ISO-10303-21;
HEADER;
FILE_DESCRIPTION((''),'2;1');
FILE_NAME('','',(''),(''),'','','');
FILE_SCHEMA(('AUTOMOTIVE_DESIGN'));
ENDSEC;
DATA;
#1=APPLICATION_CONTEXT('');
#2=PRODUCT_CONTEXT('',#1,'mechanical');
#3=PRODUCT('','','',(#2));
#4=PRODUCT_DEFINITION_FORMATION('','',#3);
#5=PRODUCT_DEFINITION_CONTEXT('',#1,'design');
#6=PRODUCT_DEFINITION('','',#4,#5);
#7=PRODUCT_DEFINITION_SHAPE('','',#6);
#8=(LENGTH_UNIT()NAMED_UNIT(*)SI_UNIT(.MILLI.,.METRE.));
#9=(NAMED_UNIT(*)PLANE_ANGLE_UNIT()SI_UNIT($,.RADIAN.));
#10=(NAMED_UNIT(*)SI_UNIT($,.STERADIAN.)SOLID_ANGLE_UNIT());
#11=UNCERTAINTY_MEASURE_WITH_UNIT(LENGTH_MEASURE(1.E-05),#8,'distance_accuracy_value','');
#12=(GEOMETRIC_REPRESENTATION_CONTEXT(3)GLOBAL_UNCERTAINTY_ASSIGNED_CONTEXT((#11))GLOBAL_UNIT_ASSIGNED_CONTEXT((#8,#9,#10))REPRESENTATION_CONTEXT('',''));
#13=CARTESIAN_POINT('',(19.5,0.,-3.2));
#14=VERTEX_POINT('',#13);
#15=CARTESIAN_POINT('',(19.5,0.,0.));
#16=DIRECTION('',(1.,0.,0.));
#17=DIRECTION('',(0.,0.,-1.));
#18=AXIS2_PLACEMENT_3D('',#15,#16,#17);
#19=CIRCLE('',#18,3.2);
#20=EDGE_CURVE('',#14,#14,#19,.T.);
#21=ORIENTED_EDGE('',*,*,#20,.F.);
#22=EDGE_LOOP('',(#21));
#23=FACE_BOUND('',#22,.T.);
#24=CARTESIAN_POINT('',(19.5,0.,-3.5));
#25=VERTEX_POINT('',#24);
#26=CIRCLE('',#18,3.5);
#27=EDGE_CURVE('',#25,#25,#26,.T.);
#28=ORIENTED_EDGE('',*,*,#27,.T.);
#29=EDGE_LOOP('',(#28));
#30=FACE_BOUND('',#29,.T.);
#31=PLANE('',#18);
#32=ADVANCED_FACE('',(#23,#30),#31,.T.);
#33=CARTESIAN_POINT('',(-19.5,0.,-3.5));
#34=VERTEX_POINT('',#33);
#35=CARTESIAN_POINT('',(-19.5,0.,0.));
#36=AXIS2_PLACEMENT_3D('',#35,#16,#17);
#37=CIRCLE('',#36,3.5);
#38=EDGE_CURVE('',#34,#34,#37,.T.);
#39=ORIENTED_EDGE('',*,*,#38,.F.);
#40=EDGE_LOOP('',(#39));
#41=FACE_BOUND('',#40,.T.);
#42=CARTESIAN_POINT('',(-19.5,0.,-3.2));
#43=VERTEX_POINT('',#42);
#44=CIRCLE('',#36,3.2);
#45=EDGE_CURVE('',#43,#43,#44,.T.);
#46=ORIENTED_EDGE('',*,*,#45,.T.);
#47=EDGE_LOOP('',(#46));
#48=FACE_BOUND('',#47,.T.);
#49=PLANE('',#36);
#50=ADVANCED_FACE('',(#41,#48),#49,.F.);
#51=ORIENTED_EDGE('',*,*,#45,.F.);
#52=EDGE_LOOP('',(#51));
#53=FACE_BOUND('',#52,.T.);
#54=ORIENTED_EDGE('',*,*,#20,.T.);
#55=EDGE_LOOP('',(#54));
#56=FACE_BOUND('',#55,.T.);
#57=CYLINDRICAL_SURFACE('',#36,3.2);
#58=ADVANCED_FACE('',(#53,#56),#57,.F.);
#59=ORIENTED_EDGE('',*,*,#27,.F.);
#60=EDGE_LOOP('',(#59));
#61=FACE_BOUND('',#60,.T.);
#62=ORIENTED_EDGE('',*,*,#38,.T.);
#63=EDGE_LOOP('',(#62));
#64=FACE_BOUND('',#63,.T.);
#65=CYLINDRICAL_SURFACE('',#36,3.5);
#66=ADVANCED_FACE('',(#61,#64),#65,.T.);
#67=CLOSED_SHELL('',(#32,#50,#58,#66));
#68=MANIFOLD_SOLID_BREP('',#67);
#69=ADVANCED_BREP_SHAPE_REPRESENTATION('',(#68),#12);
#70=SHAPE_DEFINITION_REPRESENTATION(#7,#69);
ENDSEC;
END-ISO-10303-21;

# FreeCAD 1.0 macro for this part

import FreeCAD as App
import Part
import Sketcher

V = App.Vector
Q = App.Units.Quantity

doc = App.newDocument("Part")
params = doc.addObject("Spreadsheet::Sheet", "Params")
for row, (alias, value) in enumerate([
    ("sketch1_diameter", "7 mm"),
    ("sketch1_diameter2", "6.4 mm"),
    ("pad1_length", "19.5 mm"),
    ("pad1_length2", "19.5 mm"),
], start=1):
    params.set(f"A{row}", alias)
    params.set(f"B{row}", "=" + value)
    params.setAlias(f"B{row}", alias)

body = doc.addObject("PartDesign::Body", "Body")

# Sketch on YZ plane
sketch1 = doc.addObject("Sketcher::SketchObject", "Sketch")
body.addObject(sketch1)
sketch1.AttachmentSupport = (doc.YZ_Plane, [""])
sketch1.MapMode = "FlatFace"
sketch1.addGeometry([
    Part.Circle(V(0, 0, 0), V(0, 0, 1), 3.5),
    Part.Circle(V(0, 0, 0), V(0, 0, 1), 3.2),
], False)
sketch1.addConstraint([
    Sketcher.Constraint("Coincident", 0, 3, -1, 1),
    Sketcher.Constraint("Coincident", 1, 3, -1, 1),
    Sketcher.Constraint("Diameter", 0, Q("7 mm")),
    Sketcher.Constraint("Diameter", 1, Q("6.4 mm")),
])
sketch1.setExpression("Constraints[2]", "Params.sketch1_diameter")
sketch1.setExpression("Constraints[3]", "Params.sketch1_diameter2")
pad1 = doc.addObject("PartDesign::Pad", "Pad")
body.addObject(pad1)
pad1.Profile = sketch1
pad1.Type = "TwoLengths"
pad1.setExpression("Length", "Params.pad1_length")
pad1.setExpression("Length2", "Params.pad1_length2")

doc.recompute()
